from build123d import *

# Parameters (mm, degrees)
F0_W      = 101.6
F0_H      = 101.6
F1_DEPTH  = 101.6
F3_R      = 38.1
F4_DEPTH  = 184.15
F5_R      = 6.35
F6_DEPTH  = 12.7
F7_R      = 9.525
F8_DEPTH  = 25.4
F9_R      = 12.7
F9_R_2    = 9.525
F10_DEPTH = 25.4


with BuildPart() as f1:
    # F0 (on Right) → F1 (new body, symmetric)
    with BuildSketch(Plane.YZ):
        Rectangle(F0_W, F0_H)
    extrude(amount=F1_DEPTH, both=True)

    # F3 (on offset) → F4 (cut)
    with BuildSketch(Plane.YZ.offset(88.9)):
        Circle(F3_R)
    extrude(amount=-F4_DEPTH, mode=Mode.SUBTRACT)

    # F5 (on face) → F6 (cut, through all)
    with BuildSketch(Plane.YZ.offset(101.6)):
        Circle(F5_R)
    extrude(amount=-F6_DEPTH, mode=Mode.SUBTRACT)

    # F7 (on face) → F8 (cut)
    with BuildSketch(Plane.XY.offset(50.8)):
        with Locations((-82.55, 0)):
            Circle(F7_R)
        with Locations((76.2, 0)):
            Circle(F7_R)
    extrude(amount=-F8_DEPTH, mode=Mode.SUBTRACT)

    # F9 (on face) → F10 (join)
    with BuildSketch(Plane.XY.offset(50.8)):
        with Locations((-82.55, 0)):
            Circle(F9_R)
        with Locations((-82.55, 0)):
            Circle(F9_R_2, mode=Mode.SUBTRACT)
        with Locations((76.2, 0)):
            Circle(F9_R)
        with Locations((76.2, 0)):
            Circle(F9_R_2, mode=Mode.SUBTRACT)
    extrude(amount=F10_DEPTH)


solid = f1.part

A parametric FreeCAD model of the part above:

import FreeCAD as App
import Part
import Sketcher
from FreeCAD import Vector
Q = App.Units.Quantity


def add_polygon(sketch, points):
    """Adds a closed chain of lines whose ends are joined by coincident constraints."""
    first, n = sketch.GeometryCount, len(points)
    for a, b in zip(points, points[1:] + points[:1]):
        sketch.addGeometry(Part.LineSegment(App.Vector(*a, 0), App.Vector(*b, 0)), False)
    for i in range(n):
        sketch.addConstraint(Sketcher.Constraint("Coincident", first + i, 2, first + (i + 1) % n, 1))

doc = App.newDocument("Part")
body = doc.addObject("PartDesign::Body", "Body")

# Sketch on YZ plane
sketch1 = body.newObject("Sketcher::SketchObject", "Sketch")
sketch1.AttachmentSupport = (doc.getObject("YZ_Plane"), [""])
sketch1.MapMode = "FlatFace"
add_polygon(sketch1, [(-50.8, 50.8), (-50.8, -50.8), (50.8, -50.8), (50.8, 50.8)])  # lines 0-3
sketch1.addConstraint([
    Sketcher.Constraint("Vertical", 0),
    Sketcher.Constraint("Horizontal", 1),
    Sketcher.Constraint("Vertical", 2),
    Sketcher.Constraint("Horizontal", 3),
    Sketcher.Constraint("Symmetric", 0, 2, 2, 2, -1, 1),
    Sketcher.Constraint("Equal", 3, 0),
    Sketcher.Constraint("DistanceX", 1, 1, 1, 2, Q("4 in")),
])
pad1 = body.newObject("PartDesign::Pad", "Pad")
pad1.Profile = sketch1
pad1.Length = Q("8 in")
pad1.Midplane = True

# Sketch on YZ plane
sketch2 = body.newObject("Sketcher::SketchObject", "Sketch001")
sketch2.AttachmentSupport = (doc.getObject("YZ_Plane"), [""])
sketch2.MapMode = "FlatFace"
sketch2.AttachmentOffset = App.Placement(Vector(0, 0, 3.5 * 25.4), App.Rotation())
sketch2.addGeometry(Part.Circle(Vector(0, 0, 0), Vector(0, 0, 1), 38.1), False)
sketch2.addConstraint([
    Sketcher.Constraint("Coincident", 0, 3, -1, 1),
    Sketcher.Constraint("Diameter", 0, Q("3 in")),
])
pocket1 = body.newObject("PartDesign::Pocket", "Pocket")
pocket1.Profile = sketch2
pocket1.Length = Q("7.25 in")

# Sketch on YZ plane
sketch3 = body.newObject("Sketcher::SketchObject", "Sketch002")
sketch3.AttachmentSupport = (doc.getObject("YZ_Plane"), [""])
sketch3.MapMode = "FlatFace"
sketch3.AttachmentOffset = App.Placement(Vector(0, 0, 4 * 25.4), App.Rotation())
sketch3.addGeometry(Part.Circle(Vector(0, 0, 0), Vector(0, 0, 1), 6.35), False)
sketch3.addConstraint([
    Sketcher.Constraint("Coincident", 0, 3, -1, 1),
    Sketcher.Constraint("Diameter", 0, Q("0.5 in")),
])
pocket2 = body.newObject("PartDesign::Pocket", "Pocket001")
pocket2.Profile = sketch3
pocket2.Length = Q("0.5 in")

# Sketch on XY plane
sketch4 = body.newObject("Sketcher::SketchObject", "Sketch003")
sketch4.AttachmentSupport = (doc.getObject("XY_Plane"), [""])
sketch4.MapMode = "FlatFace"
sketch4.AttachmentOffset = App.Placement(Vector(0, 0, 2 * 25.4), App.Rotation())
sketch4.addGeometry([
    Part.Circle(Vector(-82.55, 0, 0), Vector(0, 0, 1), 9.525),
    Part.Circle(Vector(76.2, 0, 0), Vector(0, 0, 1), 9.525),
], False)
sketch4.addConstraint([
    Sketcher.Constraint("Equal", 0, 1),
    Sketcher.Constraint("PointOnObject", 0, 3, -1),
    Sketcher.Constraint("PointOnObject", 1, 3, -1),
    Sketcher.Constraint("Diameter", 0, Q("0.75 in")),
    Sketcher.Constraint("DistanceX", -1, 1, 1, 3, Q("3 in")),
    Sketcher.Constraint("DistanceX", 0, 3, -1, 1, Q("3.25 in")),
])
pocket3 = body.newObject("PartDesign::Pocket", "Pocket002")
pocket3.Profile = sketch4
pocket3.Length = Q("1 in")

# Sketch on XY plane
sketch5 = body.newObject("Sketcher::SketchObject", "Sketch004")
sketch5.AttachmentSupport = (doc.getObject("XY_Plane"), [""])
sketch5.MapMode = "FlatFace"
sketch5.AttachmentOffset = App.Placement(Vector(0, 0, 2 * 25.4), App.Rotation())
sketch5.addGeometry([
    Part.Circle(Vector(-82.55, 0, 0), Vector(0, 0, 1), 12.7),
    Part.Circle(Vector(-82.55, 0, 0), Vector(0, 0, 1), 9.525),
    Part.Circle(Vector(76.2, 0, 0), Vector(0, 0, 1), 12.7),
    Part.Circle(Vector(76.2, 0, 0), Vector(0, 0, 1), 9.525),
], False)
sketch5.addConstraint([
    Sketcher.Constraint("Coincident", 1, 3, 0, 3),
    Sketcher.Constraint("Coincident", 3, 3, 2, 3),
    Sketcher.Constraint("Equal", 0, 2),
    Sketcher.Constraint("Equal", 1, 3),
    Sketcher.Constraint("PointOnObject", 0, 3, -1),
    Sketcher.Constraint("PointOnObject", 2, 3, -1),
    Sketcher.Constraint("Diameter", 0, Q("1 in")),
    Sketcher.Constraint("Diameter", 1, Q("0.75 in")),
    Sketcher.Constraint("DistanceX", -1, 1, 2, 3, Q("3 in")),
    Sketcher.Constraint("DistanceX", 0, 3, -1, 1, Q("3.25 in")),
])
pad2 = body.newObject("PartDesign::Pad", "Pad001")
pad2.Profile = sketch5
pad2.Length = Q("1 in")

doc.recompute()
